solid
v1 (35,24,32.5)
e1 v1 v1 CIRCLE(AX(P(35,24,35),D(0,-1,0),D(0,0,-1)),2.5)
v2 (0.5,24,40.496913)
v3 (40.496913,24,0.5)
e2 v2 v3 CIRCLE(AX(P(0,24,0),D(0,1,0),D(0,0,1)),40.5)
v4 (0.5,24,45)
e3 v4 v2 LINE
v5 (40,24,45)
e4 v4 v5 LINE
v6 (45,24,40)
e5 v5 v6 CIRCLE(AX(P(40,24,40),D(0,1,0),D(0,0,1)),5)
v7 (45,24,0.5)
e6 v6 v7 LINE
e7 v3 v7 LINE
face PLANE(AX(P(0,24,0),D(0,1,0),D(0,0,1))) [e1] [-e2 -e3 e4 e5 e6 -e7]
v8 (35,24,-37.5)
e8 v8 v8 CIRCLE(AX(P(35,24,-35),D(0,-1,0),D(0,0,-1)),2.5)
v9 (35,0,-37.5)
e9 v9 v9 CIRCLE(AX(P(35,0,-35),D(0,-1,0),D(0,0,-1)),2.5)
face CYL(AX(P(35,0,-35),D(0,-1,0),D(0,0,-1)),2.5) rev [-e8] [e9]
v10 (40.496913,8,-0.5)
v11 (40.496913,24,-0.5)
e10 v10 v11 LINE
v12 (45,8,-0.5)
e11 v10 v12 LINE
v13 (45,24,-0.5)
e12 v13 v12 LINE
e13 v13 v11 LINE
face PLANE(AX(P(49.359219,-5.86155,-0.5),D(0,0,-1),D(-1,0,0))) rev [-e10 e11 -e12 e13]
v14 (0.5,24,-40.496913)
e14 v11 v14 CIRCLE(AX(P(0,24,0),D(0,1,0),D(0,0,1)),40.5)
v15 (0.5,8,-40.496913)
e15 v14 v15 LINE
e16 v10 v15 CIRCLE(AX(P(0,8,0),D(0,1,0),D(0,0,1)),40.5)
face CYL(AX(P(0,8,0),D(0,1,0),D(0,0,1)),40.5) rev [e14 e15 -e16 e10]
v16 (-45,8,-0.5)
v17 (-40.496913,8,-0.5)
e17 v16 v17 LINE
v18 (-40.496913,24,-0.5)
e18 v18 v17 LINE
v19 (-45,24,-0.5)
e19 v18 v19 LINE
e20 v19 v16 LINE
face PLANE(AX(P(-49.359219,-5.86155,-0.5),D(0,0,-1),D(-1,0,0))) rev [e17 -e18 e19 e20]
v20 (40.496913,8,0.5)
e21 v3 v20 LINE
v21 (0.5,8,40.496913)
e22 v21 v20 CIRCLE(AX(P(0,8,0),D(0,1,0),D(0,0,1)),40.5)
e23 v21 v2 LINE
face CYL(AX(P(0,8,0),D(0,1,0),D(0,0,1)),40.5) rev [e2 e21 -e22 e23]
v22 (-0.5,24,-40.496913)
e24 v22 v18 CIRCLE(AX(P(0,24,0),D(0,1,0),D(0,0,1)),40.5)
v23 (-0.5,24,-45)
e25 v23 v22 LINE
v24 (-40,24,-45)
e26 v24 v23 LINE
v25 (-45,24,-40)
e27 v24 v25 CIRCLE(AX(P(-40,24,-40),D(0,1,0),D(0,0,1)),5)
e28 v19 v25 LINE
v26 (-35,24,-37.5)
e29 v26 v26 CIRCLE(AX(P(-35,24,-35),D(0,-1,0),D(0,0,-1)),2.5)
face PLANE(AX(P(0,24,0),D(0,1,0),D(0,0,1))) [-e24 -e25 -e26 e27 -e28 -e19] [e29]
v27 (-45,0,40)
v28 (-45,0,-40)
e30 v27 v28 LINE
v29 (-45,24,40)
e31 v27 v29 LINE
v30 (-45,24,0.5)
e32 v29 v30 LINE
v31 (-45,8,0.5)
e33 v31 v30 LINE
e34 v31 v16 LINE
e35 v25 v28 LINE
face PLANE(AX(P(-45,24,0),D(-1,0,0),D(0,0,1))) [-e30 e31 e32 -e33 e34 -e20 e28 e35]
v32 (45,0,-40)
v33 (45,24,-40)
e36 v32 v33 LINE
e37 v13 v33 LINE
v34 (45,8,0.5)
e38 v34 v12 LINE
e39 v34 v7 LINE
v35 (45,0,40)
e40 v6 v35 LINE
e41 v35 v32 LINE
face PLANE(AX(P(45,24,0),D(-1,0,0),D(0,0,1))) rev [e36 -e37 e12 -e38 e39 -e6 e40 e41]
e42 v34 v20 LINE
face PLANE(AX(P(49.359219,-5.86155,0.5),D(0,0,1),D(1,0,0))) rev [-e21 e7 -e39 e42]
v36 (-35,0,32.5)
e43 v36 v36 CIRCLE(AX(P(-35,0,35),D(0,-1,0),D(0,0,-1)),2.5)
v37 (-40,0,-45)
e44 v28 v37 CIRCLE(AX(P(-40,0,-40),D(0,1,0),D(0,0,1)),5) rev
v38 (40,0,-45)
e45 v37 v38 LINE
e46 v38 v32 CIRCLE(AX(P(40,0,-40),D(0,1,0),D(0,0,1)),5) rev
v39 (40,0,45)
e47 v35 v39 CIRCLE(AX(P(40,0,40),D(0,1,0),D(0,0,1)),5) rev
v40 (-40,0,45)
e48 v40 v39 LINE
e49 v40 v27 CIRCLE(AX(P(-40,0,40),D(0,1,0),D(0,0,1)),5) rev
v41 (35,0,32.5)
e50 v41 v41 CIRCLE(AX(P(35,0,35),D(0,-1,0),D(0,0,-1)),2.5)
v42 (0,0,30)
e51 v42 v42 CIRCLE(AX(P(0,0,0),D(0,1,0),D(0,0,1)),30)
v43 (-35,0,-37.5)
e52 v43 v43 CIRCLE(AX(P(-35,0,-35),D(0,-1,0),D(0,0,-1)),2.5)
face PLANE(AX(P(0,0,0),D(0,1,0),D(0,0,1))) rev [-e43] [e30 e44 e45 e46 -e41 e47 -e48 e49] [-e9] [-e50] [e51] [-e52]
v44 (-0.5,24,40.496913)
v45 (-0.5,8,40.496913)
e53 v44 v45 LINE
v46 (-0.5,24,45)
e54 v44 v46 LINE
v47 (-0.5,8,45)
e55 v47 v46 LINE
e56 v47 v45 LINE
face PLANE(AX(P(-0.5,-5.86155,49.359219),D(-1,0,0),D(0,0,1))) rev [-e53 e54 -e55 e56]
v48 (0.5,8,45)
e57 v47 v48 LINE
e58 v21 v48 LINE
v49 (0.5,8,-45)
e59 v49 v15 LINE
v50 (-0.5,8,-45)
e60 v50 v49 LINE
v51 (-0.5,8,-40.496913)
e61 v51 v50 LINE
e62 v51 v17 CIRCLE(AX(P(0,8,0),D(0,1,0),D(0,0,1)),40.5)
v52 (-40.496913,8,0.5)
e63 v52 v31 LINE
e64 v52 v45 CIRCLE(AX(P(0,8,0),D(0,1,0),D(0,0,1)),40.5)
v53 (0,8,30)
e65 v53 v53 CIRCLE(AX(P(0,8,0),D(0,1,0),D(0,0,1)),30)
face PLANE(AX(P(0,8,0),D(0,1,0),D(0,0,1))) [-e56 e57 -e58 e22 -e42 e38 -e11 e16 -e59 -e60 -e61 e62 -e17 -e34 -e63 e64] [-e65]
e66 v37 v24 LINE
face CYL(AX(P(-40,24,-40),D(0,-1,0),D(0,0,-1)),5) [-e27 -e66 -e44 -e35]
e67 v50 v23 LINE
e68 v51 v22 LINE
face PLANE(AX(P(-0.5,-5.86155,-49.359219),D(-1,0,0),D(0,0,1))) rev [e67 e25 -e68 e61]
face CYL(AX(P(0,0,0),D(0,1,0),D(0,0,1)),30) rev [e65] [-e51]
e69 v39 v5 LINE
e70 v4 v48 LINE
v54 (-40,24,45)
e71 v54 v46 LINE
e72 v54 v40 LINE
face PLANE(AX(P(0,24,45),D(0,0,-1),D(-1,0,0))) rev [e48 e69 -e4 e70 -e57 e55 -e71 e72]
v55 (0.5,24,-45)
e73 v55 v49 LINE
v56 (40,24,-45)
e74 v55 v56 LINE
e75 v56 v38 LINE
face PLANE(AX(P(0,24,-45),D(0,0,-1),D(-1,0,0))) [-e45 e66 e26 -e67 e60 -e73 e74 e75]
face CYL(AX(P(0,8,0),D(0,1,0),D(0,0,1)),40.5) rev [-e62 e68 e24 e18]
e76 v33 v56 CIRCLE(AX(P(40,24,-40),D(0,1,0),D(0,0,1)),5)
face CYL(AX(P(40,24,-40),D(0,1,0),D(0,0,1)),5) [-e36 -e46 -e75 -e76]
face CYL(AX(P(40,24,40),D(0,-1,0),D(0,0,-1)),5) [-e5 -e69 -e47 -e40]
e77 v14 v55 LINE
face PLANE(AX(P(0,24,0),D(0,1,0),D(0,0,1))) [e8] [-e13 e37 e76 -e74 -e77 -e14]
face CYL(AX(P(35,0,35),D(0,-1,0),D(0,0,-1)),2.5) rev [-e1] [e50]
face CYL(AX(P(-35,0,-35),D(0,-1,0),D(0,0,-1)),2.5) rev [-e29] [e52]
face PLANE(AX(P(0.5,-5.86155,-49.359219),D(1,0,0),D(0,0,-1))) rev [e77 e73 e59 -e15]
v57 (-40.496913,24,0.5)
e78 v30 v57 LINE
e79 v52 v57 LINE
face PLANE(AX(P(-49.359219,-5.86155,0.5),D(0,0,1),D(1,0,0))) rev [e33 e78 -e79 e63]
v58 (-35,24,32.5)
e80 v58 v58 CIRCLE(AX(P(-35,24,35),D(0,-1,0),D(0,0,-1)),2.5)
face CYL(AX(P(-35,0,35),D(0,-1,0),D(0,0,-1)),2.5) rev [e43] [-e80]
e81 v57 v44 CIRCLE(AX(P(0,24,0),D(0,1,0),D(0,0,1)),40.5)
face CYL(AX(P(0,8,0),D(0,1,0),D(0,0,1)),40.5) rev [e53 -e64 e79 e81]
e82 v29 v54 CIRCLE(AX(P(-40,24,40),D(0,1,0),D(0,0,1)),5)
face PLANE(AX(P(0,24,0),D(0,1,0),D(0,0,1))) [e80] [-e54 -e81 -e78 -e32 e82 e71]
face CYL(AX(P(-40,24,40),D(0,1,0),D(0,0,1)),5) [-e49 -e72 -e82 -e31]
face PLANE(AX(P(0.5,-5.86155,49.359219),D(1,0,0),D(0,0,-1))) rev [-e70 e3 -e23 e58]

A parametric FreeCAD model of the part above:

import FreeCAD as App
import Part
import Sketcher
Q = App.Units.Quantity


def edges_at(feature, points):
    """Names of the edges that pass closest to the given points."""
    edges = feature.Shape.Edges
    near = lambda p: min(range(len(edges)), key=lambda i: edges[i].distToShape(Part.Vertex(*p))[0])
    return sorted({f"Edge{near(p) + 1}" for p in points})


def add_polygon(sketch, points):
    """Adds a closed chain of lines whose ends are joined by coincident constraints."""
    first, n = sketch.GeometryCount, len(points)
    for a, b in zip(points, points[1:] + points[:1]):
        sketch.addGeometry(Part.LineSegment(App.Vector(*a, 0), App.Vector(*b, 0)), False)
    for i in range(n):
        sketch.addConstraint(Sketcher.Constraint("Coincident", first + i, 2, first + (i + 1) % n, 1))

doc = App.newDocument("Part")
params = doc.addObject("Spreadsheet::Sheet", "Params")
for row, (alias, value) in enumerate([
    ("sketch1_width", "90 mm"),
    ("pad1_length", "24 mm"),
    ("sketch2_diameter", "81 mm"),
    ("pocket1_length", "16 mm"),
    ("sketch3_diameter", "25.4 mm"),
    ("pocket2_length", "19 mm"),
    ("sketch4_diameter", "5 mm"),
    ("hole_diameter", "5 mm"),
    ("fillet_radius", "5 mm"),
    ("sketch5_diameter", "60 mm"),
    ("sketch5_diameter2", "25.4 mm"),
    ("pocket3_length", "66.620119 mm"),
    ("sketch6_width", "1 mm"),
    ("pocket4_length", "16 mm"),
], start=1):
    params.set(f"A{row}", alias)
    params.set(f"B{row}", "=" + value)
    params.setAlias(f"B{row}", alias)

body = doc.addObject("PartDesign::Body", "Body")

sketch1 = body.newObject("Sketcher::SketchObject", "Sketch")
sketch1.AttachmentSupport = (doc.getObject("XZ_Plane"), [""])
sketch1.MapMode = "FlatFace"
add_polygon(sketch1, [(-45, -45), (-45, 45), (45, 45), (45, -45)])
sketch1.addConstraint([
    Sketcher.Constraint("Vertical", 0),
    Sketcher.Constraint("Horizontal", 1),
    Sketcher.Constraint("Vertical", 2),
    Sketcher.Constraint("Horizontal", 3),
    Sketcher.Constraint("Symmetric", 0, 2, 2, 2, -1, 1),
    Sketcher.Constraint("Equal", 3, 0),
    Sketcher.Constraint("DistanceX", 1, 1, 1, 2, Q("90 mm")),
])
sketch1.setExpression("Constraints[10]", "Params.sketch1_width")
pad1 = body.newObject("PartDesign::Pad", "Pad")
pad1.Profile = sketch1
pad1.setExpression("Length", "Params.pad1_length")
pad1.Reversed = True

sketch2 = body.newObject("Sketcher::SketchObject", "Sketch001")
sketch2.AttachmentSupport = (doc.getObject("XZ_Plane"), [""])
sketch2.MapMode = "FlatFace"
sketch2.AttachmentOffset = App.Placement(App.Vector(0, 0, -24), App.Rotation())
sketch2.addGeometry(Part.Circle(App.Vector(0, 0, 0), App.Vector(0, 0, 1), 40), False)
sketch2.addConstraint([
    Sketcher.Constraint("Coincident", 0, 3, -1, 1),
    Sketcher.Constraint("Diameter", 0, Q("81 mm")),
])
sketch2.setExpression("Constraints[1]", "Params.sketch2_diameter")
pocket1 = body.newObject("PartDesign::Pocket", "Pocket")
pocket1.Profile = sketch2
pocket1.setExpression("Length", "Params.pocket1_length")
pocket1.Reversed = True

sketch3 = body.newObject("Sketcher::SketchObject", "Sketch002")
sketch3.AttachmentSupport = (doc.getObject("XZ_Plane"), [""])
sketch3.MapMode = "FlatFace"
sketch3.AttachmentOffset = App.Placement(App.Vector(0, 0, -8), App.Rotation())
sketch3.addGeometry(Part.Circle(App.Vector(0, 0, 0), App.Vector(0, 0, 1), 13), False)
sketch3.addConstraint([
    Sketcher.Constraint("Coincident", 0, 3, -1, 1),
    Sketcher.Constraint("Diameter", 0, Q("25.4 mm")),
])
sketch3.setExpression("Constraints[1]", "Params.sketch3_diameter")
pocket2 = body.newObject("PartDesign::Pocket", "Pocket001")
pocket2.Profile = sketch3
pocket2.setExpression("Length", "Params.pocket2_length")
pocket2.Reversed = True

sketch4 = body.newObject("Sketcher::SketchObject", "Sketch003")
sketch4.AttachmentSupport = (doc.getObject("XZ_Plane"), [""])
sketch4.MapMode = "FlatFace"
sketch4.addGeometry([
    Part.Circle(App.Vector(-35, -35, 0), App.Vector(0, 0, 1), 2.5),
    Part.Circle(App.Vector(-35, 35, 0), App.Vector(0, 0, 1), 2.5),
    Part.Circle(App.Vector(35, 35, 0), App.Vector(0, 0, 1), 2.5),
    Part.Circle(App.Vector(35, -35, 0), App.Vector(0, 0, 1), 2.5),
], False)
sketch4.addConstraint([
    Sketcher.Constraint("Equal", 0, 1),
    Sketcher.Constraint("Equal", 1, 2),
    Sketcher.Constraint("Equal", 2, 3),
    Sketcher.Constraint("Symmetric", 0, 3, 2, 3, -1, 1),
    Sketcher.Constraint("Symmetric", 1, 3, 3, 3, -1, 1),
    Sketcher.Constraint("Symmetric", 1, 3, 2, 3, -2),
    Sketcher.Constraint("Diameter", 0, Q("5 mm")),
    Sketcher.Constraint("DistanceX", 0, 3, -1, 1, Q("35 mm")),
    Sketcher.Constraint("DistanceY", 0, 3, -1, 1, Q("35 mm")),
])
sketch4.setExpression("Constraints[6]", "Params.sketch4_diameter")
doc.recompute()
hole = body.newObject("PartDesign::Hole", "Hole")
hole.Profile = sketch4
hole.ThreadType = "None"
hole.setExpression("Diameter", "Params.hole_diameter")
hole.DepthType = "ThroughAll"
doc.recompute()

fillet = body.newObject("PartDesign::Fillet", "Fillet")
fillet.Base = (hole, edges_at(hole, [
    (-45, 12, 45),
    (-45, 12, -45),
    (45, 12, -45),
    (45, 12, 45),
]))
fillet.setExpression("Radius", "Params.fillet_radius")

sketch5 = body.newObject("Sketcher::SketchObject", "Sketch004")
sketch5.AttachmentSupport = (doc.getObject("XZ_Plane"), [""])
sketch5.MapMode = "FlatFace"
sketch5.AttachmentOffset = App.Placement(App.Vector(0, 0, -8), App.Rotation())
sketch5.addGeometry([
    Part.Circle(App.Vector(0, 0, 0), App.Vector(0, 0, 1), 30),
    Part.Circle(App.Vector(0, 0, 0), App.Vector(0, 0, 1), 13),
], False)
sketch5.addConstraint([
    Sketcher.Constraint("Coincident", 0, 3, -1, 1),
    Sketcher.Constraint("Coincident", 1, 3, -1, 1),
    Sketcher.Constraint("Diameter", 0, Q("60 mm")),
    Sketcher.Constraint("Diameter", 1, Q("25.4 mm")),
])
sketch5.setExpression("Constraints[2]", "Params.sketch5_diameter")
sketch5.setExpression("Constraints[3]", "Params.sketch5_diameter2")
pocket3 = body.newObject("PartDesign::Pocket", "Pocket002")
pocket3.Profile = sketch5
pocket3.setExpression("Length", "Params.pocket3_length")
pocket3.Reversed = True

sketch6 = body.newObject("Sketcher::SketchObject", "Sketch005")
sketch6.AttachmentSupport = (doc.getObject("XZ_Plane"), [""])
sketch6.MapMode = "FlatFace"
sketch6.AttachmentOffset = App.Placement(App.Vector(0, 0, -24), App.Rotation())
add_polygon(sketch6, [(35.5, -0.5), (35.5, 0.5), (49.4, 0.5), (49.4, -0.5)])
add_polygon(sketch6, [(-0.5, -49.4), (-0.5, -35.5), (0.5, -35.5), (0.5, -49.4)])
add_polygon(sketch6, [(-0.5, 35.5), (-0.5, 49.4), (0.5, 49.4), (0.5, 35.5)])
add_polygon(sketch6, [(-49.4, -0.5), (-49.4, 0.5), (-35.5, 0.5), (-35.5, -0.5)])
sketch6.addConstraint([
    Sketcher.Constraint("Vertical", 0),
    Sketcher.Constraint("Horizontal", 1),
    Sketcher.Constraint("Vertical", 2),
    Sketcher.Constraint("Horizontal", 3),
    Sketcher.Constraint("Vertical", 4),
    Sketcher.Constraint("Horizontal", 5),
    Sketcher.Constraint("Vertical", 6),
    Sketcher.Constraint("Horizontal", 7),
    Sketcher.Constraint("Vertical", 8),
    Sketcher.Constraint("Horizontal", 9),
    Sketcher.Constraint("Vertical", 10),
    Sketcher.Constraint("Horizontal", 11),
    Sketcher.Constraint("Vertical", 12),
    Sketcher.Constraint("Horizontal", 13),
    Sketcher.Constraint("Vertical", 14),
    Sketcher.Constraint("Horizontal", 15),
    Sketcher.Constraint("Symmetric", 6, 2, 8, 2, -1, 1),
    Sketcher.Constraint("Symmetric", 4, 2, 10, 2, -1, 1),
    Sketcher.Constraint("Symmetric", 2, 2, 12, 2, -1, 1),
    Sketcher.Constraint("Symmetric", 0, 2, 14, 2, -1, 1),
    Sketcher.Constraint("Horizontal", 1, 2, 12, 2),
    Sketcher.Constraint("Vertical", 7, 2, 8, 2),
    Sketcher.Constraint("Equal", 11, 0),
    Sketcher.Constraint("Equal", 15, 4),
    Sketcher.Constraint("DistanceX", 5, 1, 5, 2, Q("1 mm")),
    Sketcher.Constraint("DistanceX", 1, 1, 1, 2, Q("13.825432 mm")),
    Sketcher.Constraint("DistanceX", -1, 1, 1, 2, Q("49.359219 mm")),
    Sketcher.Constraint("DistanceY", 6, 2, -1, 1, Q("49.359219 mm")),
])
sketch6.setExpression("Constraints[40]", "Params.sketch6_width")
pocket4 = body.newObject("PartDesign::Pocket", "Pocket003")
pocket4.Profile = sketch6
pocket4.setExpression("Length", "Params.pocket4_length")
pocket4.Reversed = True

doc.recompute()
